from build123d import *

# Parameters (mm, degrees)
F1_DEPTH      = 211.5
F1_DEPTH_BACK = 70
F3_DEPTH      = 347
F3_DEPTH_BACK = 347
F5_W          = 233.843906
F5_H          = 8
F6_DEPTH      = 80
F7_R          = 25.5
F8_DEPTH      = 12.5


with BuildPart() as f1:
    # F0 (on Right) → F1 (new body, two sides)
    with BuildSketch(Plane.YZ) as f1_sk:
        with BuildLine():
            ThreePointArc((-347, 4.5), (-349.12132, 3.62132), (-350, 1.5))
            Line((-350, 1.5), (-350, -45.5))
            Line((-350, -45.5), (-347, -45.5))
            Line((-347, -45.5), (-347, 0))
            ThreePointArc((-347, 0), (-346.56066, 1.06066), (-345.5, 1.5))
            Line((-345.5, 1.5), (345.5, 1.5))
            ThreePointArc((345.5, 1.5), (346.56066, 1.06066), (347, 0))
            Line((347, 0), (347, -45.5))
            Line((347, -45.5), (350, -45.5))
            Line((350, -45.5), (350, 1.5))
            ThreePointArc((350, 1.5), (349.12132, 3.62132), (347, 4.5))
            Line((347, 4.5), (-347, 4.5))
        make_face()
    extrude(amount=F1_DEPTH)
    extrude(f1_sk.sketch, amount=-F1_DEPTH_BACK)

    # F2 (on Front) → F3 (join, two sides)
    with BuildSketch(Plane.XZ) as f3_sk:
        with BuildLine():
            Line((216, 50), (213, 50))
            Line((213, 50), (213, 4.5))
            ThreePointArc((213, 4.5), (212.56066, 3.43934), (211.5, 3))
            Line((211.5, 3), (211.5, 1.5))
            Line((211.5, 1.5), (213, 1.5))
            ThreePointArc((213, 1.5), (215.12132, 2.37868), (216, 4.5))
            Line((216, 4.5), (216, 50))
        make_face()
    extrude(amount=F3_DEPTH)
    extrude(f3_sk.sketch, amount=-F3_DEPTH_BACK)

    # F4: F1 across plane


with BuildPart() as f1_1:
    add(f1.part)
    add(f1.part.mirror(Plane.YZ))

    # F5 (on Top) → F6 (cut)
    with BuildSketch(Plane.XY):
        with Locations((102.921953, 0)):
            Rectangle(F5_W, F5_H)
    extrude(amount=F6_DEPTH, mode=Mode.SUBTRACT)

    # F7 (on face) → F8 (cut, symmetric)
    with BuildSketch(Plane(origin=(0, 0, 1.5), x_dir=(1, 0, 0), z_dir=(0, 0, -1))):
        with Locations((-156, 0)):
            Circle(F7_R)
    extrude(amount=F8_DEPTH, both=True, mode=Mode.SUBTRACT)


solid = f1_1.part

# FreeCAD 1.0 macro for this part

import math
import FreeCAD as App
import Part
import Sketcher

V = App.Vector


def add_polygon(sketch, points):
    """Adds a closed chain of lines whose ends are joined by coincident constraints."""
    first, n = sketch.GeometryCount, len(points)
    for a, b in zip(points, points[1:] + points[:1]):
        sketch.addGeometry(Part.LineSegment(App.Vector(*a, 0), App.Vector(*b, 0)), False)
    for i in range(n):
        sketch.addConstraint(Sketcher.Constraint("Coincident", first + i, 2, first + (i + 1) % n, 1))

doc = App.newDocument("Part")
params = doc.addObject("Spreadsheet::Sheet", "Params")
for row, (alias, value) in enumerate([
    ("sketch1_radius", "3.000001 mm"),
    ("sketch1_radius2", "1.500001 mm"),
    ("sketch1_width", "691 mm"),
    ("sketch1_height", "47 mm"),
    ("pad1_length", "211.5 mm"),
    ("pad1_length2", "70 mm"),
    ("sketch2_radius", "3.000001 mm"),
    ("sketch2_radius2", "1.500001 mm"),
    ("sketch2_height", "45.5 mm"),
    ("pad2_length", "347 mm"),
    ("pad2_length2", "347 mm"),
    ("sketch3_height", "8 mm"),
    ("pocket1_length", "80 mm"),
    ("sketch4_diameter", "51 mm"),
    ("pocket2_length", "25 mm"),
], start=1):
    params.set(f"A{row}", alias)
    params.set(f"B{row}", "=" + value)
    params.setAlias(f"B{row}", alias)

body = doc.addObject("PartDesign::Body", "Body")

# Sketch on YZ plane
sketch1 = body.newObject("Sketcher::SketchObject", "Sketch")
sketch1.AttachmentSupport = (doc.getObject("YZ_Plane"), [""])
sketch1.MapMode = "FlatFace"
sketch1.addGeometry([
    Part.ArcOfCircle(Part.Circle(V(-347, 1.5, 0), V(0, 0, 1), 3), math.radians(90), math.radians(180)),  # 0
    Part.LineSegment(V(-350, 1.5, 0), V(-350, -45.5, 0)),  # 1
    Part.LineSegment(V(-350, -45.5, 0), V(-347, -45.5, 0)),  # 2
    Part.LineSegment(V(-347, -45.5, 0), V(-347, 0, 0)),  # 3
    Part.ArcOfCircle(Part.Circle(V(-345.5, 0, 0), V(0, 0, 1), 1.5), math.radians(90), math.radians(180)),  # 4
    Part.LineSegment(V(-345.5, 1.5, 0), V(345.5, 1.5, 0)),  # 5
    Part.ArcOfCircle(Part.Circle(V(345.5, 0, 0), V(0, 0, 1), 1.5), math.radians(0), math.radians(90)),  # 6
    Part.LineSegment(V(347, 0, 0), V(347, -45.5, 0)),  # 7
    Part.LineSegment(V(347, -45.5, 0), V(350, -45.5, 0)),  # 8
    Part.LineSegment(V(350, -45.5, 0), V(350, 1.5, 0)),  # 9
    Part.ArcOfCircle(Part.Circle(V(347, 1.5, 0), V(0, 0, 1), 3), math.radians(0), math.radians(90)),  # 10
    Part.LineSegment(V(347, 4.5, 0), V(-347, 4.5, 0)),  # 11
], False)
sketch1.addConstraint([
    Sketcher.Constraint("Tangent", 0, 2, 1, 1),
    Sketcher.Constraint("Coincident", 1, 2, 2, 1),
    Sketcher.Constraint("Coincident", 2, 2, 3, 1),
    Sketcher.Constraint("Tangent", 3, 2, 4, 2),
    Sketcher.Constraint("Tangent", 4, 1, 5, 1),
    Sketcher.Constraint("Tangent", 5, 2, 6, 2),
    Sketcher.Constraint("Tangent", 6, 1, 7, 1),
    Sketcher.Constraint("Coincident", 7, 2, 8, 1),
    Sketcher.Constraint("Coincident", 8, 2, 9, 1),
    Sketcher.Constraint("Tangent", 9, 2, 10, 1),
    Sketcher.Constraint("Tangent", 10, 2, 11, 1),
    Sketcher.Constraint("Tangent", 11, 2, 0, 1),
    Sketcher.Constraint("Vertical", 1),
    Sketcher.Constraint("Horizontal", 2),
    Sketcher.Constraint("Vertical", 3),
    Sketcher.Constraint("Horizontal", 5),
    Sketcher.Constraint("Vertical", 7),
    Sketcher.Constraint("Horizontal", 8),
    Sketcher.Constraint("Vertical", 9),
    Sketcher.Constraint("Horizontal", 11),
    Sketcher.Constraint("Equal", 4, 6),
    Sketcher.Constraint("Equal", 0, 10),
    Sketcher.Constraint("Symmetric", 4, 3, 6, 3, -1, 1),
    Sketcher.Constraint("Symmetric", 1, 2, 8, 2, -2),
    Sketcher.Constraint("Horizontal", 0, 2, 4, 1),
    Sketcher.Constraint("Vertical", 0, 3, 2, 2),
    Sketcher.Constraint("Radius", 0, 3.000001),
    Sketcher.Constraint("Radius", 4, 1.500001),
    Sketcher.Constraint("DistanceX", 5, 1, 5, 2, 691.0),
    Sketcher.Constraint("DistanceY", 1, 2, 1, 1, 47.0),
])
sketch1.setExpression("Constraints[26]", "Params.sketch1_radius")
sketch1.setExpression("Constraints[27]", "Params.sketch1_radius2")
sketch1.setExpression("Constraints[28]", "Params.sketch1_width")
sketch1.setExpression("Constraints[29]", "Params.sketch1_height")
pad1 = body.newObject("PartDesign::Pad", "Pad")
pad1.Profile = sketch1
pad1.Type = "TwoLengths"
pad1.setExpression("Length", "Params.pad1_length")
pad1.setExpression("Length2", "Params.pad1_length2")

# Sketch on XZ plane
sketch2 = body.newObject("Sketcher::SketchObject", "Sketch001")
sketch2.AttachmentSupport = (doc.getObject("XZ_Plane"), [""])
sketch2.MapMode = "FlatFace"
sketch2.addGeometry([
    Part.LineSegment(V(216, 50, 0), V(213, 50, 0)),  # 0
    Part.LineSegment(V(213, 50, 0), V(213, 4.5, 0)),  # 1
    Part.ArcOfCircle(Part.Circle(V(211.5, 4.5, 0), V(0, 0, 1), 1.5), math.radians(-90), math.radians(0)),  # 2
    Part.LineSegment(V(211.5, 3, 0), V(211.5, 1.5, 0)),  # 3
    Part.LineSegment(V(211.5, 1.5, 0), V(213, 1.5, 0)),  # 4
    Part.ArcOfCircle(Part.Circle(V(213, 4.5, 0), V(0, 0, 1), 3), math.radians(-90), math.radians(0)),  # 5
    Part.LineSegment(V(216, 4.5, 0), V(216, 50, 0)),  # 6
], False)
sketch2.addConstraint([
    Sketcher.Constraint("Coincident", 0, 2, 1, 1),
    Sketcher.Constraint("Tangent", 1, 2, 2, 2),
    Sketcher.Constraint("Coincident", 2, 1, 3, 1),
    Sketcher.Constraint("Coincident", 3, 2, 4, 1),
    Sketcher.Constraint("Tangent", 4, 2, 5, 1),
    Sketcher.Constraint("Tangent", 5, 2, 6, 1),
    Sketcher.Constraint("Coincident", 6, 2, 0, 1),
    Sketcher.Constraint("Horizontal", 0),
    Sketcher.Constraint("Vertical", 1),
    Sketcher.Constraint("Vertical", 3),
    Sketcher.Constraint("Horizontal", 4),
    Sketcher.Constraint("Vertical", 6),
    Sketcher.Constraint("Coincident", 1, 2, 5, 3),
    Sketcher.Constraint("Equal", 4, 3),
    Sketcher.Constraint("Radius", 5, 3.000001),
    Sketcher.Constraint("Radius", 2, 1.500001),
    Sketcher.Constraint("DistanceY", 1, 2, 1, 1, 45.5),
    Sketcher.Constraint("DistanceX", -1, 1, 5, 3, 212.999999),
    Sketcher.Constraint("DistanceY", -1, 1, 0, 2, 50.0),
])
sketch2.setExpression("Constraints[14]", "Params.sketch2_radius")
sketch2.setExpression("Constraints[15]", "Params.sketch2_radius2")
sketch2.setExpression("Constraints[16]", "Params.sketch2_height")
pad2 = body.newObject("PartDesign::Pad", "Pad001")
pad2.Profile = sketch2
pad2.Type = "TwoLengths"
pad2.setExpression("Length", "Params.pad2_length")
pad2.setExpression("Length2", "Params.pad2_length2")
body2 = doc.addObject("PartDesign::Body", "Body001")
doc.recompute()

body2.BaseFeature = body
doc.recompute()

mirroring = doc.addObject("Part::Mirroring", "Mirroring")
mirroring.Source = body
mirroring.Base = V(0, 0, 0)
mirroring.Normal = V(1, 0, 0)
body3 = doc.addObject("PartDesign::Body", "Body002")
body3.BaseFeature = mirroring
boolean = body2.newObject("PartDesign::Boolean", "Boolean")
boolean.Type = "Fuse"
boolean.addObjects([body3])
doc.recompute()

# Sketch on XY plane
sketch3 = body2.newObject("Sketcher::SketchObject", "Sketch002")
sketch3.AttachmentSupport = (doc.getObject("XY_Plane001"), [""])
sketch3.MapMode = "FlatFace"
add_polygon(sketch3, [(-14, 4), (-14, -4), (220, -4), (220, 4)])  # lines 0-3
sketch3.addConstraint([
    Sketcher.Constraint("Vertical", 0),
    Sketcher.Constraint("Horizontal", 1),
    Sketcher.Constraint("Vertical", 2),
    Sketcher.Constraint("Horizontal", 3),
    Sketcher.Constraint("DistanceY", 0, 2, 0, 1, 8.0),
    Sketcher.Constraint("DistanceX", 0, 2, -1, 1, 14.0),
    Sketcher.Constraint("DistanceY", 0, 2, -1, 1, 4.0),
    Sketcher.Constraint("DistanceX", 1, 1, 1, 2, 233.843906),
])
sketch3.setExpression("Constraints[8]", "Params.sketch3_height")
pocket1 = body2.newObject("PartDesign::Pocket", "Pocket")
pocket1.Profile = sketch3
pocket1.setExpression("Length", "Params.pocket1_length")
pocket1.Reversed = True

# Sketch on XY plane
sketch4 = body2.newObject("Sketcher::SketchObject", "Sketch003")
sketch4.AttachmentSupport = (doc.getObject("XY_Plane001"), [""])
sketch4.MapMode = "FlatFace"
sketch4.AttachmentOffset = App.Placement(V(0, 0, 1.5), App.Rotation())
sketch4.addGeometry(Part.Circle(V(-156, 0, 0), V(0, 0, 1), 26), False)
sketch4.addConstraint([
    Sketcher.Constraint("PointOnObject", 0, 3, -1),
    Sketcher.Constraint("Diameter", 0, 51.0),
    Sketcher.Constraint("DistanceX", 0, 3, -1, 1, 156.0),
])
sketch4.setExpression("Constraints[1]", "Params.sketch4_diameter")
pocket2 = body2.newObject("PartDesign::Pocket", "Pocket001")
pocket2.Profile = sketch4
pocket2.setExpression("Length", "Params.pocket2_length")
pocket2.Midplane = True
mirroring.Visibility = False

doc.recompute()
